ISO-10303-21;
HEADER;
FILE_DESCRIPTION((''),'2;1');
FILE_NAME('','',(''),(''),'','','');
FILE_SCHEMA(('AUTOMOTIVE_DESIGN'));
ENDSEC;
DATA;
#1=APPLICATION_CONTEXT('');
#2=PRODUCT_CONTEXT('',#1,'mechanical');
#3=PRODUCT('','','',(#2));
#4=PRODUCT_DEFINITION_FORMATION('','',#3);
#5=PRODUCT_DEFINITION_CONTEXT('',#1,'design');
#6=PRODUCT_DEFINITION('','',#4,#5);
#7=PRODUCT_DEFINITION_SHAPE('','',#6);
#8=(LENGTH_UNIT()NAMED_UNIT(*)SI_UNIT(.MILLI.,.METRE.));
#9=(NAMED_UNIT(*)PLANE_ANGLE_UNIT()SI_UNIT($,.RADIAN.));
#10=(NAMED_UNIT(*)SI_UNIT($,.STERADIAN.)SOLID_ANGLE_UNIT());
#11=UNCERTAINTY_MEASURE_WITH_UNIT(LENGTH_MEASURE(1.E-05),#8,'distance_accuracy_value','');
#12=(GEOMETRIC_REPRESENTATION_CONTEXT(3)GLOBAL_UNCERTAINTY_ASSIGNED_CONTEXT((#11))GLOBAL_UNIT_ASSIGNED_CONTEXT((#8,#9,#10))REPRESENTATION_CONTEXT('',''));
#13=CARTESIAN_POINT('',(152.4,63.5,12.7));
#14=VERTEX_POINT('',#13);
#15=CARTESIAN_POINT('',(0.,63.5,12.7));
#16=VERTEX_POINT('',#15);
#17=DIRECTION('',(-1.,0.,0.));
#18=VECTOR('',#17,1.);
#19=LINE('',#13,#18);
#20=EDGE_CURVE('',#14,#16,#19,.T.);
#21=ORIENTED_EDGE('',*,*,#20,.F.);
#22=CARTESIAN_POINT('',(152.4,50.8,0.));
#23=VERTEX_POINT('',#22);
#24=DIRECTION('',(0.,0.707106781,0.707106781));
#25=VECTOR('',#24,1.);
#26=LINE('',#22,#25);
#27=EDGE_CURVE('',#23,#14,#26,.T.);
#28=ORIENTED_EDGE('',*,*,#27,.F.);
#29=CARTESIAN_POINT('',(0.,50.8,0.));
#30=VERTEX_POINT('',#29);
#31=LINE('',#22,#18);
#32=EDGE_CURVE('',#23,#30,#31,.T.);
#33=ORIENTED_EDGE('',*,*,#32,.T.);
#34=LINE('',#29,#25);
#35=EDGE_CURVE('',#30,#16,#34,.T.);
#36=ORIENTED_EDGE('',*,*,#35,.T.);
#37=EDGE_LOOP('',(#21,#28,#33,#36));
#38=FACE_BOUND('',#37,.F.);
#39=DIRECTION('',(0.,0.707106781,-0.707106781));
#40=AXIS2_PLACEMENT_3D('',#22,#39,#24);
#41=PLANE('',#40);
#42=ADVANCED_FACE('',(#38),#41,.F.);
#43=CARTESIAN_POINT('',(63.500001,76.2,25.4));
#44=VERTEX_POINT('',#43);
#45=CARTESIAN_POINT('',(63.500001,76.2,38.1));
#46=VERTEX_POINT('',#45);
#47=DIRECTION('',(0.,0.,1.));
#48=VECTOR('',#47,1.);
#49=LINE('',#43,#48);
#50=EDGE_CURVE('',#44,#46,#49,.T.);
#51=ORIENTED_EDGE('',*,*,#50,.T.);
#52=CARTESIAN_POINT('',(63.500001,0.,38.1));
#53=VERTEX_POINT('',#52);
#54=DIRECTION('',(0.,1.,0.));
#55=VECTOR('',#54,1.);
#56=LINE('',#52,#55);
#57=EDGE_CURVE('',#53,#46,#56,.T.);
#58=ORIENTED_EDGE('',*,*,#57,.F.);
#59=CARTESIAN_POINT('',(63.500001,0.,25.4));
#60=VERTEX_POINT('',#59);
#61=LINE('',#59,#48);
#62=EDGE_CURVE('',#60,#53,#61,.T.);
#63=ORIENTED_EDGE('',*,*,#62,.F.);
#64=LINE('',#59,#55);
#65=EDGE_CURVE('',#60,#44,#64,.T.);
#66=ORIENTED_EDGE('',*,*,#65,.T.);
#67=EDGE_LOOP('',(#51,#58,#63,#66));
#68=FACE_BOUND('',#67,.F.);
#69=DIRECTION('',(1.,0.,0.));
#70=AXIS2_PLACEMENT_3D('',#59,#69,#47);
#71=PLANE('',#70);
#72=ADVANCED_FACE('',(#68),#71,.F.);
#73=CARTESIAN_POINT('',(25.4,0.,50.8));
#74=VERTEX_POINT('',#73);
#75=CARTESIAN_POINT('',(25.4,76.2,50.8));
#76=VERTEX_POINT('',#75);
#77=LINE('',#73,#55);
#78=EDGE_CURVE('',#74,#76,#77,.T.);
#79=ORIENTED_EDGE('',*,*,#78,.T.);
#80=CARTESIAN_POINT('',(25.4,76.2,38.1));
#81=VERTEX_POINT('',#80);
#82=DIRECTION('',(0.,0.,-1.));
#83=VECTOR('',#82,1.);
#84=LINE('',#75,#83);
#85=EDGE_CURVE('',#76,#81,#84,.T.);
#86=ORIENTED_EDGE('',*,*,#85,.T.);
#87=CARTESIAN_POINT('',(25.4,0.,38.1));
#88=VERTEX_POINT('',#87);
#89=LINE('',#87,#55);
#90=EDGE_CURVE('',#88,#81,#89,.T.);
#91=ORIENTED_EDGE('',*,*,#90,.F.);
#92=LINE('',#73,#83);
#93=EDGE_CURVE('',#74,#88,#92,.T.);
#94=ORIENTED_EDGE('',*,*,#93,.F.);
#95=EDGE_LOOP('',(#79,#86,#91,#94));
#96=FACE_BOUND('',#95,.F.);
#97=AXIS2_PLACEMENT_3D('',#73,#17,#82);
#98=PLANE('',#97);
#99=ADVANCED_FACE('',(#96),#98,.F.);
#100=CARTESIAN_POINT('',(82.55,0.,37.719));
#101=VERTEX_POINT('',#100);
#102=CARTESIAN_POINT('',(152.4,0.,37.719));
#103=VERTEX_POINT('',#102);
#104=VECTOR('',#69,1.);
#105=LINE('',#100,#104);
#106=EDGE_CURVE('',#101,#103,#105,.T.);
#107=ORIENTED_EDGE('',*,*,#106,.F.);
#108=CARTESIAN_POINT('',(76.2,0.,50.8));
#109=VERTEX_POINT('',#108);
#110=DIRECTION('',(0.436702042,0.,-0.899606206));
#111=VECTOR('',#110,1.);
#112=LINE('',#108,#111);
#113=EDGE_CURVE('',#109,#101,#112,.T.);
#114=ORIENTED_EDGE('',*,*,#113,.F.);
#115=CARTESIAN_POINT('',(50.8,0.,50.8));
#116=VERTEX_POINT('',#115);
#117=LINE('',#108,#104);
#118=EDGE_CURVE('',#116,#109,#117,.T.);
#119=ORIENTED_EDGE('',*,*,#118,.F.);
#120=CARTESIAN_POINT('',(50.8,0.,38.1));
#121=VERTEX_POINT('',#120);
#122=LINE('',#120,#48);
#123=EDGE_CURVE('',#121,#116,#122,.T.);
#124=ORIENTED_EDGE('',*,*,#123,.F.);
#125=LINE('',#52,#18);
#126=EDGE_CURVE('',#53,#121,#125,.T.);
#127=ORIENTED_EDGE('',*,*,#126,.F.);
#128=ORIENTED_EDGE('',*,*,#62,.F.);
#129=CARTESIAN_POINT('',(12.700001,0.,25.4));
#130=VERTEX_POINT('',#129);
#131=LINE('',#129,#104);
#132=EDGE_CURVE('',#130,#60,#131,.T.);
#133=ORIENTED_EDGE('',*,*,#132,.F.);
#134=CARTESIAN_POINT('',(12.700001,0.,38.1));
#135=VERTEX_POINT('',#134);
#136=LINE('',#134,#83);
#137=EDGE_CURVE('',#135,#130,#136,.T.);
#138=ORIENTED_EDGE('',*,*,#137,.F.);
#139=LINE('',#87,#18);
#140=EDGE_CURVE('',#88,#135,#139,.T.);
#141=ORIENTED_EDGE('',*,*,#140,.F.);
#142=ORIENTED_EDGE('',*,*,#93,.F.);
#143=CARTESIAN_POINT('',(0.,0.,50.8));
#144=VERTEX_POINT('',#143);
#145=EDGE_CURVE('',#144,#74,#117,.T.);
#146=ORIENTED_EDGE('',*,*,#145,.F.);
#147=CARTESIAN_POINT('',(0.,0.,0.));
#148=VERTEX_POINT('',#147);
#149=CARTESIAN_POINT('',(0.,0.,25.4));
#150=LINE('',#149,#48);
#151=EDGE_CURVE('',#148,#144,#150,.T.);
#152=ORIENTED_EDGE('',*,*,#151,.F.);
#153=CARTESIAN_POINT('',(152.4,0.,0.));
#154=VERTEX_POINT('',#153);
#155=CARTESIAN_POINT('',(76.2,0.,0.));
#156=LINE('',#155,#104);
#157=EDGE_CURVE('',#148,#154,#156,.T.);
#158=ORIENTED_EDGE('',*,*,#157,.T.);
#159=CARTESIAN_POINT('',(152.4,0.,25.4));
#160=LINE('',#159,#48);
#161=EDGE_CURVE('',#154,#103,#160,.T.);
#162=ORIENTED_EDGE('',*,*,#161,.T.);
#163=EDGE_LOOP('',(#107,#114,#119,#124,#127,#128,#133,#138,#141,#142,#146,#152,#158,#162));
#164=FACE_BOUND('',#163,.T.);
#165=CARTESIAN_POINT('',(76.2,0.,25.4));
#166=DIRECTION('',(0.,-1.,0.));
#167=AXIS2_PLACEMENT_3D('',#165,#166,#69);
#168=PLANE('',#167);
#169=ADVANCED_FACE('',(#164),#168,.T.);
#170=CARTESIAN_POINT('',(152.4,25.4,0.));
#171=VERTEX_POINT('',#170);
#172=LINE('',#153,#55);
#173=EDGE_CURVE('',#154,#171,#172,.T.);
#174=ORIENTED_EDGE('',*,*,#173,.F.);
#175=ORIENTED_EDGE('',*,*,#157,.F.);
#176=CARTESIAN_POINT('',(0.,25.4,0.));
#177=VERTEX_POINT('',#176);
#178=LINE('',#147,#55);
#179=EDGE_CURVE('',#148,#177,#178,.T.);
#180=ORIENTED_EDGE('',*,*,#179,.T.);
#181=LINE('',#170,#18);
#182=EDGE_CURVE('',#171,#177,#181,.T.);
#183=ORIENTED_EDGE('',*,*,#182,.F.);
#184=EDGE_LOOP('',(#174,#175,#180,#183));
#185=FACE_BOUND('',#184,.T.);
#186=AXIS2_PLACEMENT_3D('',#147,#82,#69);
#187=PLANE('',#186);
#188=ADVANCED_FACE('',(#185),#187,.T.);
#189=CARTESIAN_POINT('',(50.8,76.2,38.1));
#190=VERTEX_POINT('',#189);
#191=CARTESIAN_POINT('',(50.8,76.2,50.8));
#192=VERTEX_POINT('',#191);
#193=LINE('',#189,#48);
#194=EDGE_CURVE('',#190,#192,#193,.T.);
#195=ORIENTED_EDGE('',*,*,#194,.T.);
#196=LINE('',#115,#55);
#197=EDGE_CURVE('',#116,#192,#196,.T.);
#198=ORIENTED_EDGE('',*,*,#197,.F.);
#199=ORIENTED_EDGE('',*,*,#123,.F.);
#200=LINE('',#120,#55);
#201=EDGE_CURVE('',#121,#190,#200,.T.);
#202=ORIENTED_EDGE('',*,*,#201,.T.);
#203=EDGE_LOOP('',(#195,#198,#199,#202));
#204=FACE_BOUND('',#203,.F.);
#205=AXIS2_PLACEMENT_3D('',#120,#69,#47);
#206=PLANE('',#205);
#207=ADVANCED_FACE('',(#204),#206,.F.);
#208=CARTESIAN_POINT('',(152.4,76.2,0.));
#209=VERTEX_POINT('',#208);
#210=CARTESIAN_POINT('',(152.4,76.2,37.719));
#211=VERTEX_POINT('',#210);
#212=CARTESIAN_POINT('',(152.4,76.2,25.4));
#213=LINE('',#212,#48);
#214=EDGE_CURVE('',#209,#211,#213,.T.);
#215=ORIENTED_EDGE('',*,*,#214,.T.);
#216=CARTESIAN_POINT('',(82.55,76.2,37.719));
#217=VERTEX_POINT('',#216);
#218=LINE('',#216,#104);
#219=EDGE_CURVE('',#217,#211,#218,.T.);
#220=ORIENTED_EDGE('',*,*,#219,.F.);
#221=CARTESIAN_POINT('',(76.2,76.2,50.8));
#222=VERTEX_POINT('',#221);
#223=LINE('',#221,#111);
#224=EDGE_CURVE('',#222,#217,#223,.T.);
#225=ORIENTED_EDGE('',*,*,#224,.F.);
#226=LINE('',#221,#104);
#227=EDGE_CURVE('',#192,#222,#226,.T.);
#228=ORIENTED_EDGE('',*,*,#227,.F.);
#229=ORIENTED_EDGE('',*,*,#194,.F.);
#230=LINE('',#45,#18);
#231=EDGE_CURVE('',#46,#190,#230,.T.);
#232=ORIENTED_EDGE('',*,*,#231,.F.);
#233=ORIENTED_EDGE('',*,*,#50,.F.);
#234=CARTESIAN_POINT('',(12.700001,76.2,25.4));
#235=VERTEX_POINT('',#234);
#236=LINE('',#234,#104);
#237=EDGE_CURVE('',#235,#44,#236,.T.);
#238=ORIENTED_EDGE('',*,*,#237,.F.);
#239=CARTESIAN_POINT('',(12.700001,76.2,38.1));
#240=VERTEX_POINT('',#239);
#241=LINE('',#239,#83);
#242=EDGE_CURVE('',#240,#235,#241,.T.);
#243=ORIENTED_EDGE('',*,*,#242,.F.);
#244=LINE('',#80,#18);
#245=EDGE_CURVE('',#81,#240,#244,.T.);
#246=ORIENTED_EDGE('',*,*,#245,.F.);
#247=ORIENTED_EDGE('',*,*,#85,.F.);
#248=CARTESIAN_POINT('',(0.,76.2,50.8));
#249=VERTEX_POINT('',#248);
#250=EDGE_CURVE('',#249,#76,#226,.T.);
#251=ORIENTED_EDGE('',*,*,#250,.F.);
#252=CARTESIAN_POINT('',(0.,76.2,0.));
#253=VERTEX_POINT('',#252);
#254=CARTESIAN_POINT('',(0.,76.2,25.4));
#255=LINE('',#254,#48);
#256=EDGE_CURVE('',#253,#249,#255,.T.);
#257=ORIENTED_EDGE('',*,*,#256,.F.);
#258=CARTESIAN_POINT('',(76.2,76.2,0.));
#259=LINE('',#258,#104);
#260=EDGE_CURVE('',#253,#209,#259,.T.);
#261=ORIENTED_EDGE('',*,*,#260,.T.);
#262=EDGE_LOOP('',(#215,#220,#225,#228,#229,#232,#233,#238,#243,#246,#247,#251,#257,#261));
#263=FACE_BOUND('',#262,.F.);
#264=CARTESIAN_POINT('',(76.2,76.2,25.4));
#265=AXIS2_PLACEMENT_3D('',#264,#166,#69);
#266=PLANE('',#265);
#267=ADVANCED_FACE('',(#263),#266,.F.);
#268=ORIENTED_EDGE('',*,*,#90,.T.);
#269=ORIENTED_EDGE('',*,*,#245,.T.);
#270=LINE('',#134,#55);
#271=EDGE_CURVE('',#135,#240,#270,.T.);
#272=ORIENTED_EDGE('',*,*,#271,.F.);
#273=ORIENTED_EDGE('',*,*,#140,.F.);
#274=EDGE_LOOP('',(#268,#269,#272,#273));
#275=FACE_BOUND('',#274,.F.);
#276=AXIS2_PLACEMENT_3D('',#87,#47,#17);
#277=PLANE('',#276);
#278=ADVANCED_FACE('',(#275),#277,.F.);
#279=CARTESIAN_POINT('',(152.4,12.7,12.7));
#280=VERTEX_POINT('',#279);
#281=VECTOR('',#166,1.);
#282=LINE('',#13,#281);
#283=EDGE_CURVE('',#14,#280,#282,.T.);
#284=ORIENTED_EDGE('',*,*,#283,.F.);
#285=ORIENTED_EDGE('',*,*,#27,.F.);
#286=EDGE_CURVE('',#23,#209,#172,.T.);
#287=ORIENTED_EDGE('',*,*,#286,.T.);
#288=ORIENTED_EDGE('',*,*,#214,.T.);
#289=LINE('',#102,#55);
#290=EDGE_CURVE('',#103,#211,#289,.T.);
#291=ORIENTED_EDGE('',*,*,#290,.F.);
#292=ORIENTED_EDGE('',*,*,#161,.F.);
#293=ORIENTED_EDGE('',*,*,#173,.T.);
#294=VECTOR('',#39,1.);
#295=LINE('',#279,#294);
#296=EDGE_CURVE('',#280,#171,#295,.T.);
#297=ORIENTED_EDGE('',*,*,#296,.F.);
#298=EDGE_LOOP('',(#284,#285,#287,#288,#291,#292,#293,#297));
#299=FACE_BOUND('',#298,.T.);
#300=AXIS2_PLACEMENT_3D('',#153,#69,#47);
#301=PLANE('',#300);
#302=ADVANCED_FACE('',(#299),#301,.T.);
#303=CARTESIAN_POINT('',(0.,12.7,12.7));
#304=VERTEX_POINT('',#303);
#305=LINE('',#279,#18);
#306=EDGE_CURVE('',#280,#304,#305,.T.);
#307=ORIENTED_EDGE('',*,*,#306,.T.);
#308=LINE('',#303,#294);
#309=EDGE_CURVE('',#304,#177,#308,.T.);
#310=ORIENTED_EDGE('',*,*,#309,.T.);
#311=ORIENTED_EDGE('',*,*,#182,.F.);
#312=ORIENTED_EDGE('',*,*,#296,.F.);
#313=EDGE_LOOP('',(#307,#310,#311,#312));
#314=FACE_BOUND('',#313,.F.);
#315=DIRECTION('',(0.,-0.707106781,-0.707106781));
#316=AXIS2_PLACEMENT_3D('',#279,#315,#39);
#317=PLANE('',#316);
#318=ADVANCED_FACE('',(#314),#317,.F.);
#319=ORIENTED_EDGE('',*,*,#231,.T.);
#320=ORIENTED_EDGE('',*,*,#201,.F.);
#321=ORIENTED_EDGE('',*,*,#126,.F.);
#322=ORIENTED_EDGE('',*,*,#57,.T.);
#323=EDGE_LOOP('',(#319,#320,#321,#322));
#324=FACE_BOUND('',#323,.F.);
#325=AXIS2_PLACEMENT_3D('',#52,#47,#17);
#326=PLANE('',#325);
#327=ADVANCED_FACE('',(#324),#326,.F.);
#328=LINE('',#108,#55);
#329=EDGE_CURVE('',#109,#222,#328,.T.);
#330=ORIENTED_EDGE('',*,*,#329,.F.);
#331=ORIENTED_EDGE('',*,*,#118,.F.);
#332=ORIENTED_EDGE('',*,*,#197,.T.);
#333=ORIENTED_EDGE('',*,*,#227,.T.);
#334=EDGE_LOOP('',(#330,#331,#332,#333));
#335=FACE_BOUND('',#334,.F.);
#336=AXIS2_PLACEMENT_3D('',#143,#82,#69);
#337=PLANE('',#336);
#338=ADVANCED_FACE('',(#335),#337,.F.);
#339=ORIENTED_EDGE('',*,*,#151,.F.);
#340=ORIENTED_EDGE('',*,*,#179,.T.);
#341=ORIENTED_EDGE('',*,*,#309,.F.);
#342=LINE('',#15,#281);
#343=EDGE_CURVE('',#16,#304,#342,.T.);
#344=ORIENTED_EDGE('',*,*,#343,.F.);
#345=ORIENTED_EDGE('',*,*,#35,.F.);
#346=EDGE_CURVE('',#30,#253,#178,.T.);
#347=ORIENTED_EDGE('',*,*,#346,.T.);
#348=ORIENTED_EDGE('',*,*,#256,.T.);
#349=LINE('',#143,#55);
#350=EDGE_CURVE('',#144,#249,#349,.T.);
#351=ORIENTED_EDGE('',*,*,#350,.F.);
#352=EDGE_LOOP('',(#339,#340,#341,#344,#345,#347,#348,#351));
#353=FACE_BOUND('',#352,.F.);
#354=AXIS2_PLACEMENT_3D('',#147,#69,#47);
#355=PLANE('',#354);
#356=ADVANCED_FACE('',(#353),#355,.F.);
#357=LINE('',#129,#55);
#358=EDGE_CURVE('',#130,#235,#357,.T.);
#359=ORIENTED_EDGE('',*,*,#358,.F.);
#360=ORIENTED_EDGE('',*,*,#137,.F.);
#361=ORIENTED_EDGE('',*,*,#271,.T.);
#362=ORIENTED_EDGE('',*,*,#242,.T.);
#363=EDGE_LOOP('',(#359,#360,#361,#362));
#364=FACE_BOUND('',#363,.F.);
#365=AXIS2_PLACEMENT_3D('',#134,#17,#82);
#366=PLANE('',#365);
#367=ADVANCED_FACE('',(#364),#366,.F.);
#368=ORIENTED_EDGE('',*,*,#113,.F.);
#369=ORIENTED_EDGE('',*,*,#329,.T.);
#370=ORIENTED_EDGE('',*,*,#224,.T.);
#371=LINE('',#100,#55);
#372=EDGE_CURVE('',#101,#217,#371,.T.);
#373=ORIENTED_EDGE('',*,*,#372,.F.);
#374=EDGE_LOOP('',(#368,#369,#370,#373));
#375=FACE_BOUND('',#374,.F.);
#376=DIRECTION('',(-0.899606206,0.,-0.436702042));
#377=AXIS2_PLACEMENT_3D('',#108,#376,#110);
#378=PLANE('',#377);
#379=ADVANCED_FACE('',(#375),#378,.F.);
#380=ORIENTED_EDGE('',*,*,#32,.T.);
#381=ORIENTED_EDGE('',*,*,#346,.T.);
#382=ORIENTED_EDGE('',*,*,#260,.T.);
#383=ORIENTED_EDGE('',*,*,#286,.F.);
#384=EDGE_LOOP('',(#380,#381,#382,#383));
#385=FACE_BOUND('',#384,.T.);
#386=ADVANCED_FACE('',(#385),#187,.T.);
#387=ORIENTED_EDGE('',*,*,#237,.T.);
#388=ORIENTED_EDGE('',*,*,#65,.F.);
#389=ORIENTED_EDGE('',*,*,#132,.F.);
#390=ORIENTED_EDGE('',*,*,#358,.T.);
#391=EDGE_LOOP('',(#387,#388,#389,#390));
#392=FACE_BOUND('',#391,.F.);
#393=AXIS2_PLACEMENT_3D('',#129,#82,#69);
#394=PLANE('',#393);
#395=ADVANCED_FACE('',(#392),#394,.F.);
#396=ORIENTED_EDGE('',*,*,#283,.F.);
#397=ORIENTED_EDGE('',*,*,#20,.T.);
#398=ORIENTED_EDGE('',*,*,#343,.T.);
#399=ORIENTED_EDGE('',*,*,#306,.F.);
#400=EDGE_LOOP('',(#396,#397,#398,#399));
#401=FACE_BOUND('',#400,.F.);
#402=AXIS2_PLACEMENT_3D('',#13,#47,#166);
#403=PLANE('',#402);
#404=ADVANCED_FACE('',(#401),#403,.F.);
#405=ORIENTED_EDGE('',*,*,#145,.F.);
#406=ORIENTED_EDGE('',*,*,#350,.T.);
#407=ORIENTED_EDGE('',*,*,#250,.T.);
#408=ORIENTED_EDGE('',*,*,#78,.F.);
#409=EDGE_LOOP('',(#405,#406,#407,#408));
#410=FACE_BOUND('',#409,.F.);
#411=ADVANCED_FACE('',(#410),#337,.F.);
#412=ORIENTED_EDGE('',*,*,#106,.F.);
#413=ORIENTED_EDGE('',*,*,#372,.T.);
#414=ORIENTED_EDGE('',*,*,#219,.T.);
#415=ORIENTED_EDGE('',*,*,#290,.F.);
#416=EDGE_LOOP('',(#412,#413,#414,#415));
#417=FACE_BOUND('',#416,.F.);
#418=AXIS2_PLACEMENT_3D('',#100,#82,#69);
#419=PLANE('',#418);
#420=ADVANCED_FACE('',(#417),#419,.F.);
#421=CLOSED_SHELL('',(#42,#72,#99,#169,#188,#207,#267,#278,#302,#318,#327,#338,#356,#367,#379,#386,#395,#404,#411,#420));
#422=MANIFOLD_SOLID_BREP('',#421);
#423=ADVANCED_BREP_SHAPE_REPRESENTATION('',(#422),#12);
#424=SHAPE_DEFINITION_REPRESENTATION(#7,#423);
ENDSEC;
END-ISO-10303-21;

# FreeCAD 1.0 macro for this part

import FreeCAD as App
import Part
import Sketcher

V = App.Vector
Q = App.Units.Quantity


def add_polygon(sketch, points):
    """Adds a closed chain of lines whose ends are joined by coincident constraints."""
    first, n = sketch.GeometryCount, len(points)
    for a, b in zip(points, points[1:] + points[:1]):
        sketch.addGeometry(Part.LineSegment(App.Vector(*a, 0), App.Vector(*b, 0)), False)
    for i in range(n):
        sketch.addConstraint(Sketcher.Constraint("Coincident", first + i, 2, first + (i + 1) % n, 1))

doc = App.newDocument("Part")
body = doc.addObject("PartDesign::Body", "Body")

# Sketch on XZ plane
sketch1 = body.newObject("Sketcher::SketchObject", "Sketch")
sketch1.AttachmentSupport = (doc.getObject("XZ_Plane"), [""])
sketch1.MapMode = "FlatFace"
add_polygon(sketch1, [(0, 51), (0, 0), (152, 0), (152, 51)])  # lines 0-3
sketch1.addConstraint([
    Sketcher.Constraint("Vertical", 0),
    Sketcher.Constraint("Horizontal", 1),
    Sketcher.Constraint("Vertical", 2),
    Sketcher.Constraint("Horizontal", 3),
    Sketcher.Constraint("Coincident", 0, 2, -1, 1),
    Sketcher.Constraint("DistanceX", 1, 1, 1, 2, Q("6 in")),
    Sketcher.Constraint("DistanceY", 0, 2, 0, 1, Q("2 in")),
])
pad1 = body.newObject("PartDesign::Pad", "Pad")
pad1.Profile = sketch1
pad1.Length = Q("3 in")
pad1.Reversed = True

# Sketch on XZ plane
sketch2 = body.newObject("Sketcher::SketchObject", "Sketch001")
sketch2.AttachmentSupport = (doc.getObject("XZ_Plane"), [""])
sketch2.MapMode = "FlatFace"
add_polygon(sketch2, [(51, 51), (25, 51), (25, 38), (13, 38), (13, 25), (64, 25), (64, 38), (51, 38)])  # lines 0-7
add_polygon(sketch2, [(83, 38), (152, 38), (152, 51), (76, 51)])  # lines 8-11
sketch2.addConstraint([
    Sketcher.Constraint("Horizontal", 0),
    Sketcher.Constraint("Vertical", 1),
    Sketcher.Constraint("Horizontal", 2),
    Sketcher.Constraint("Vertical", 3),
    Sketcher.Constraint("Horizontal", 4),
    Sketcher.Constraint("Vertical", 5),
    Sketcher.Constraint("Horizontal", 6),
    Sketcher.Constraint("Vertical", 7),
    Sketcher.Constraint("Horizontal", 8),
    Sketcher.Constraint("Vertical", 9),
    Sketcher.Constraint("Horizontal", 10),
    Sketcher.Constraint("Horizontal", 2, 2, 5, 2),
    Sketcher.Constraint("Horizontal", 7, 2, 9, 2),
    Sketcher.Constraint("Equal", 6, 1),
    Sketcher.Constraint("Equal", 1, 3),
    Sketcher.Constraint("Equal", 2, 5),
    Sketcher.Constraint("DistanceX", 0, 2, 0, 1, Q("1 in")),
    Sketcher.Constraint("DistanceX", 4, 1, 4, 2, Q("2 in")),
    Sketcher.Constraint("DistanceX", 10, 2, 10, 1, Q("3 in")),
    Sketcher.Constraint("DistanceX", -1, 1, 0, 2, Q("1 in")),
    Sketcher.Constraint("DistanceY", -1, 1, 0, 2, Q("2 in")),
    Sketcher.Constraint("DistanceX", -1, 1, 8, 2, Q("6 in")),
    Sketcher.Constraint("DistanceX", 8, 1, 8, 2, Q("2.75 in")),
    Sketcher.Constraint("DistanceY", 9, 1, 9, 2, Q("0.515 in")),
])
pocket1 = body.newObject("PartDesign::Pocket", "Pocket")
pocket1.Profile = sketch2
pocket1.Length = Q("3 in")

# Sketch on YZ plane
sketch3 = body.newObject("Sketcher::SketchObject", "Sketch002")
sketch3.AttachmentSupport = (doc.getObject("YZ_Plane"), [""])
sketch3.MapMode = "FlatFace"
sketch3.AttachmentOffset = App.Placement(V(0, 0, 6 * 25.4), App.Rotation())
add_polygon(sketch3, [(13, 13), (25, 0), (51, 0), (64, 13)])  # lines 0-3
sketch3.addConstraint([
    Sketcher.Constraint("Horizontal", 1),
    Sketcher.Constraint("Horizontal", 3),
    Sketcher.Constraint("PointOnObject", 0, 2, -1),
    Sketcher.Constraint("Perpendicular", 0, 2),
    Sketcher.Constraint("Equal", 0, 2),
    Sketcher.Constraint("DistanceX", 1, 1, 1, 2, Q("1 in")),
    Sketcher.Constraint("DistanceX", 3, 2, 3, 1, Q("2 in")),
    Sketcher.Constraint("DistanceX", -1, 1, 0, 2, Q("1 in")),
])
pocket2 = body.newObject("PartDesign::Pocket", "Pocket001")
pocket2.Profile = sketch3
pocket2.Length = Q("6 in")

doc.recompute()
